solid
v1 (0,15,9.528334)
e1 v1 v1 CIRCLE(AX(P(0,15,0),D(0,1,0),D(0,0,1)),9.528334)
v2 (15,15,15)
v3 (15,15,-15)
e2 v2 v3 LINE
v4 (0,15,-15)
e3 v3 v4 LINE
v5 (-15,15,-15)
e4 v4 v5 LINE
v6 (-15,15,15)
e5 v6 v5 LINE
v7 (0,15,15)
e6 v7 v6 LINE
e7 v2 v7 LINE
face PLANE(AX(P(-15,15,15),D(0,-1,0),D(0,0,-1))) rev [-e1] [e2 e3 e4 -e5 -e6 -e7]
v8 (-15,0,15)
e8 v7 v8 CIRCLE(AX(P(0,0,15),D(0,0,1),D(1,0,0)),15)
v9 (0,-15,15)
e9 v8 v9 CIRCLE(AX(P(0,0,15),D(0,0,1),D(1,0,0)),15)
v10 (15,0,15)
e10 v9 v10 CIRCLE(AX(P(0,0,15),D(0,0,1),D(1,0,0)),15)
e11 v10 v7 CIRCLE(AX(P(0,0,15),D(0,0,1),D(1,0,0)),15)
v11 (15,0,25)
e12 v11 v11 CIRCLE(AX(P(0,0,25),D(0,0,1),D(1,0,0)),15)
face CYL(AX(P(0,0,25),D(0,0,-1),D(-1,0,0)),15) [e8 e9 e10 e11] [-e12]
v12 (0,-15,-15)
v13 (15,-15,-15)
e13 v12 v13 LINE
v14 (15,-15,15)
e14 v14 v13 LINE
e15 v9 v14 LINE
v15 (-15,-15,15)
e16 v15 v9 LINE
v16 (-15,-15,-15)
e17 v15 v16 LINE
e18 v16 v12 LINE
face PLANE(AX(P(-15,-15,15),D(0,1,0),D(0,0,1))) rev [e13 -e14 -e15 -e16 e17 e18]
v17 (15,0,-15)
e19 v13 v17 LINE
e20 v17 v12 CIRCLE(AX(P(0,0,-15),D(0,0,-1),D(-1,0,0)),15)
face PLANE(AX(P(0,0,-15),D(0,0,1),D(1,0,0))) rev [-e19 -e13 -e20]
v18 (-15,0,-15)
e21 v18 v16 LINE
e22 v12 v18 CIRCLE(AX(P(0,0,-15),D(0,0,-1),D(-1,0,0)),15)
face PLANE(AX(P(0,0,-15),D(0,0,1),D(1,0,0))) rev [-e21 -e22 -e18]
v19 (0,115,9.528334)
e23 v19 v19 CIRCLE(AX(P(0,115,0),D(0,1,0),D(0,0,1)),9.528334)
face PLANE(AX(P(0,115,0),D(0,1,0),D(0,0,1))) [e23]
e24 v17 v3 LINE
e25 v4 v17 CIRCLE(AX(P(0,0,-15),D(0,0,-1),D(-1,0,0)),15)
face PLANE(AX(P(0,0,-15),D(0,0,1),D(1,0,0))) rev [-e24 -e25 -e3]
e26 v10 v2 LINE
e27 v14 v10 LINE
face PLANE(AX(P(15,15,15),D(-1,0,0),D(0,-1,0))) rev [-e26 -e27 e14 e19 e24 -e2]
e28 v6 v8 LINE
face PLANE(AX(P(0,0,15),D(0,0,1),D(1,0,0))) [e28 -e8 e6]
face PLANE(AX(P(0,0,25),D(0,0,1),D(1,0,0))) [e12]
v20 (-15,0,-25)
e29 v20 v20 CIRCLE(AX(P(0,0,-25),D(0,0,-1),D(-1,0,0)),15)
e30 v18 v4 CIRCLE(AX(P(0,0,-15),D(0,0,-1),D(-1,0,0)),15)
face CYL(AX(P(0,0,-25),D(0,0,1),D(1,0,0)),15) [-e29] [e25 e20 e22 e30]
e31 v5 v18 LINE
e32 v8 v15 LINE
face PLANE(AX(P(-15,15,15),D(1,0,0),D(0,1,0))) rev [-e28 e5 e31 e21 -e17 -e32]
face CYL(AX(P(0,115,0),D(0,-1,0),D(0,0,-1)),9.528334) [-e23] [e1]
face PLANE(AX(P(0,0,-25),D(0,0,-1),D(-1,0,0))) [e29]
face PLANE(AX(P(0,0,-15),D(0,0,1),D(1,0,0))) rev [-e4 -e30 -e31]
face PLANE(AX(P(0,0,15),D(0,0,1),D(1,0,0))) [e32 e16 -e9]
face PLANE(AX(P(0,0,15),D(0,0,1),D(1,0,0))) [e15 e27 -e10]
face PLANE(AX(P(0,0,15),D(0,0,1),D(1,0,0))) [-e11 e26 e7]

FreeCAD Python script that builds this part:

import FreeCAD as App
import Part
import Sketcher
from FreeCAD import Vector
Q = App.Units.Quantity


def add_polygon(sketch, points):
    """Adds a closed chain of lines whose ends are joined by coincident constraints."""
    first, n = sketch.GeometryCount, len(points)
    for a, b in zip(points, points[1:] + points[:1]):
        sketch.addGeometry(Part.LineSegment(App.Vector(*a, 0), App.Vector(*b, 0)), False)
    for i in range(n):
        sketch.addConstraint(Sketcher.Constraint("Coincident", first + i, 2, first + (i + 1) % n, 1))

doc = App.newDocument("Part")
params = doc.addObject("Spreadsheet::Sheet", "Params")
for row, (alias, value) in enumerate([
    ("sketch1_width", "30 mm"),
    ("pad1_length", "30 mm"),
    ("sketch2_diameter", "30 mm"),
    ("pad2_length", "10 mm"),
    ("sketch3_diameter", "30 mm"),
    ("pad3_length", "10 mm"),
    ("pad4_length", "130 mm"),
], start=1):
    params.set(f"A{row}", alias)
    params.set(f"B{row}", "=" + value)
    params.setAlias(f"B{row}", alias)

body = doc.addObject("PartDesign::Body", "Body")

sketch1 = body.newObject("Sketcher::SketchObject", "Sketch")
sketch1.AttachmentSupport = (doc.getObject("XY_Plane"), [""])
sketch1.MapMode = "FlatFace"
add_polygon(sketch1, [(-15, 15), (-15, -15), (15, -15), (15, 15)])
sketch1.addConstraint([
    Sketcher.Constraint("Vertical", 0),
    Sketcher.Constraint("Horizontal", 1),
    Sketcher.Constraint("Vertical", 2),
    Sketcher.Constraint("Horizontal", 3),
    Sketcher.Constraint("Symmetric", 0, 2, 2, 2, -1, 1),
    Sketcher.Constraint("Equal", 3, 0),
    Sketcher.Constraint("DistanceX", 1, 1, 1, 2, Q("30 mm")),
])
sketch1.setExpression("Constraints[10]", "Params.sketch1_width")
pad1 = body.newObject("PartDesign::Pad", "Pad")
pad1.Profile = sketch1
pad1.setExpression("Length", "Params.pad1_length")
pad1.Midplane = True

sketch2 = body.newObject("Sketcher::SketchObject", "Sketch001")
sketch2.AttachmentSupport = (doc.getObject("XY_Plane"), [""])
sketch2.MapMode = "FlatFace"
sketch2.AttachmentOffset = App.Placement(Vector(0, 0, 15), App.Rotation())
sketch2.addGeometry(Part.Circle(Vector(0, 0, 0), Vector(0, 0, 1), 15), False)
sketch2.addConstraint([
    Sketcher.Constraint("Coincident", 0, 3, -1, 1),
    Sketcher.Constraint("Diameter", 0, Q("30 mm")),
])
sketch2.setExpression("Constraints[1]", "Params.sketch2_diameter")
pad2 = body.newObject("PartDesign::Pad", "Pad001")
pad2.Profile = sketch2
pad2.setExpression("Length", "Params.pad2_length")

sketch3 = body.newObject("Sketcher::SketchObject", "Sketch002")
sketch3.AttachmentSupport = (doc.getObject("XY_Plane"), [""])
sketch3.MapMode = "FlatFace"
sketch3.AttachmentOffset = App.Placement(Vector(0, 0, -15), App.Rotation())
sketch3.addGeometry(Part.Circle(Vector(0, 0, 0), Vector(0, 0, 1), 15), False)
sketch3.addConstraint([
    Sketcher.Constraint("Coincident", 0, 3, -1, 1),
    Sketcher.Constraint("Diameter", 0, Q("30 mm")),
])
sketch3.setExpression("Constraints[1]", "Params.sketch3_diameter")
pad3 = body.newObject("PartDesign::Pad", "Pad002")
pad3.Profile = sketch3
pad3.setExpression("Length", "Params.pad3_length")
pad3.Reversed = True

sketch4 = body.newObject("Sketcher::SketchObject", "Sketch003")
sketch4.AttachmentSupport = (doc.getObject("XZ_Plane"), [""])
sketch4.MapMode = "FlatFace"
sketch4.AttachmentOffset = App.Placement(Vector(0, 0, -15), App.Rotation())
sketch4.addGeometry(Part.Circle(Vector(0, 0, 0), Vector(0, 0, 1), 10), False)
sketch4.addConstraint([
    Sketcher.Constraint("Coincident", 0, 3, -1, 1),
    Sketcher.Constraint("Diameter", 0, Q("19.056668 mm")),
])
pocket1 = body.newObject("PartDesign::Pocket", "Pocket")
pocket1.Profile = sketch4
pocket1.Type = "ThroughAll"
pocket1.Reversed = True

sketch5 = body.newObject("Sketcher::SketchObject", "Sketch004")
sketch5.AttachmentSupport = (doc.getObject("XZ_Plane"), [""])
sketch5.MapMode = "FlatFace"
sketch5.AttachmentOffset = App.Placement(Vector(0, 0, 15), App.Rotation())
sketch5.addGeometry(Part.Circle(Vector(0, 0, 0), Vector(0, 0, 1), 10), False)
sketch5.addConstraint([
    Sketcher.Constraint("Coincident", 0, 3, -1, 1),
    Sketcher.Constraint("Diameter", 0, Q("19.056668 mm")),
])
pad4 = body.newObject("PartDesign::Pad", "Pad003")
pad4.Profile = sketch5
pad4.setExpression("Length", "Params.pad4_length")
pad4.Reversed = True

doc.recompute()
